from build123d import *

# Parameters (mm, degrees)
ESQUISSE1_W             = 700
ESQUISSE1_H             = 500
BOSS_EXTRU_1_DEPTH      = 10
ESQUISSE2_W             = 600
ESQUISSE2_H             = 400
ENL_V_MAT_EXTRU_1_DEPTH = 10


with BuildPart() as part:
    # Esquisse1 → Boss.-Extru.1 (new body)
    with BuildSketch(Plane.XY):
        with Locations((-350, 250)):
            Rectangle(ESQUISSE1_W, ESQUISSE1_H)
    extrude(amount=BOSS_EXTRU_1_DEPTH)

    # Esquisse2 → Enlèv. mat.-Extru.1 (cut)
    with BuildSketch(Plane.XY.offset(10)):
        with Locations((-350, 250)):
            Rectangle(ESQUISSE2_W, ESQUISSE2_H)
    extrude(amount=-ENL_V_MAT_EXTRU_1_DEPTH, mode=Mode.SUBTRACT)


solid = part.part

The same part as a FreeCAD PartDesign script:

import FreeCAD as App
import Part
import Sketcher
from FreeCAD import Vector

doc = App.newDocument("Part")
body = doc.addObject("PartDesign::Body", "Body")

# Sketch on XY plane
sketch1 = body.newObject("Sketcher::SketchObject", "Sketch")
sketch1.AttachmentSupport = (doc.getObject("XY_Plane"), [""])
sketch1.MapMode = "FlatFace"
sketch1.addGeometry([
    Part.LineSegment(Vector(-700, 500, 0), Vector(-700, 0, 0)),
    Part.LineSegment(Vector(-700, 0, 0), Vector(0, 0, 0)),
    Part.LineSegment(Vector(0, 0, 0), Vector(0, 500, 0)),
    Part.LineSegment(Vector(0, 500, 0), Vector(-700, 500, 0)),
], False)
sketch1.addConstraint([
    Sketcher.Constraint("Coincident", 0, 2, 1, 1),
    Sketcher.Constraint("Coincident", 1, 2, 2, 1),
    Sketcher.Constraint("Coincident", 2, 2, 3, 1),
    Sketcher.Constraint("Coincident", 3, 2, 0, 1),
    Sketcher.Constraint("Vertical", 0),
    Sketcher.Constraint("Horizontal", 1),
    Sketcher.Constraint("Vertical", 2),
    Sketcher.Constraint("Horizontal", 3),
    Sketcher.Constraint("Coincident", 1, 2, -1, 1),
    Sketcher.Constraint("DistanceX", 1, 1, 1, 2, 700.0),
    Sketcher.Constraint("DistanceY", 0, 2, 0, 1, 500.0),
])
pad1 = body.newObject("PartDesign::Pad", "Pad")
pad1.Profile = sketch1
pad1.Length = 10

# Sketch on XY plane
sketch2 = body.newObject("Sketcher::SketchObject", "Sketch001")
sketch2.AttachmentSupport = (doc.getObject("XY_Plane"), [""])
sketch2.MapMode = "FlatFace"
sketch2.AttachmentOffset = App.Placement(Vector(0, 0, 10), App.Rotation())
sketch2.addGeometry([
    Part.LineSegment(Vector(-650, 450, 0), Vector(-650, 50, 0)),
    Part.LineSegment(Vector(-650, 50, 0), Vector(-50, 50, 0)),
    Part.LineSegment(Vector(-50, 50, 0), Vector(-50, 450, 0)),
    Part.LineSegment(Vector(-50, 450, 0), Vector(-650, 450, 0)),
], False)
sketch2.addConstraint([
    Sketcher.Constraint("Coincident", 0, 2, 1, 1),
    Sketcher.Constraint("Coincident", 1, 2, 2, 1),
    Sketcher.Constraint("Coincident", 2, 2, 3, 1),
    Sketcher.Constraint("Coincident", 3, 2, 0, 1),
    Sketcher.Constraint("Vertical", 0),
    Sketcher.Constraint("Horizontal", 1),
    Sketcher.Constraint("Vertical", 2),
    Sketcher.Constraint("Horizontal", 3),
    Sketcher.Constraint("DistanceX", 1, 1, 1, 2, 600.0),
    Sketcher.Constraint("DistanceY", 0, 2, 0, 1, 400.0),
    Sketcher.Constraint("DistanceX", 0, 2, -1, 1, 650.0),
    Sketcher.Constraint("DistanceY", -1, 1, 0, 2, 50.0),
])
pocket1 = body.newObject("PartDesign::Pocket", "Pocket")
pocket1.Profile = sketch2
pocket1.Length = 10

doc.recompute()
